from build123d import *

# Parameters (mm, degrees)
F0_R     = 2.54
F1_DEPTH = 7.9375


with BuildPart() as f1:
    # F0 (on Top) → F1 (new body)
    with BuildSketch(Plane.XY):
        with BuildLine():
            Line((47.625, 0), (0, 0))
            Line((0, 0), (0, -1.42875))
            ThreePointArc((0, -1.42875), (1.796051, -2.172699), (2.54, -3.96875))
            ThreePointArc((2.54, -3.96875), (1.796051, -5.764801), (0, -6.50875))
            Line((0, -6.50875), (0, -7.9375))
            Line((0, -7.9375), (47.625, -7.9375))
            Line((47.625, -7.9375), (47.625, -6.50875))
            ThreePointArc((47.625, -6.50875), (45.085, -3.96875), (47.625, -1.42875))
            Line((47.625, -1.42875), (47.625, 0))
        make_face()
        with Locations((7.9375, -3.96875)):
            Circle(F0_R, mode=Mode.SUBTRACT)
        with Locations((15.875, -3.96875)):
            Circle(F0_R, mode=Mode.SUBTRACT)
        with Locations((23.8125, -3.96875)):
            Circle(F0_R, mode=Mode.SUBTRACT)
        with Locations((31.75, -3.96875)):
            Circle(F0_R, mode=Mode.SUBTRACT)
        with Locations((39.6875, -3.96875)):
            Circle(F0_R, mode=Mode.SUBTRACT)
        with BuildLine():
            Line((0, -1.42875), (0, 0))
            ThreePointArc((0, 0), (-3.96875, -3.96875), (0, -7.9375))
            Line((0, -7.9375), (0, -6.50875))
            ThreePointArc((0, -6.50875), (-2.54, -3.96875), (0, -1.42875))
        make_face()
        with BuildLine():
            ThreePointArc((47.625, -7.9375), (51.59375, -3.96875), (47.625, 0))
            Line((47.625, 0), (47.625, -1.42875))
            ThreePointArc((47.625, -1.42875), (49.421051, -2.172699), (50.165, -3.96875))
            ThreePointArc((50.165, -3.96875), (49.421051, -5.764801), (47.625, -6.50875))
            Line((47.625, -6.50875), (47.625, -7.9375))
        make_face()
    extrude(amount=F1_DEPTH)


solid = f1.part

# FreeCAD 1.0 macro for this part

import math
import FreeCAD as App
import Part
import Sketcher
Q = App.Units.Quantity

doc = App.newDocument("Part")
body = doc.addObject("PartDesign::Body", "Body")

sketch1 = doc.addObject("Sketcher::SketchObject", "Sketch")
body.addObject(sketch1)
sketch1.AttachmentSupport = (doc.XY_Plane, [""])
sketch1.MapMode = "FlatFace"
sketch1.addGeometry(Part.LineSegment(App.Vector(47.6, 0, 0), App.Vector(0, 0, 0)), False)
sketch1.addGeometry(Part.ArcOfCircle(Part.Circle(App.Vector(0, -4, 0), App.Vector(0, 0, 1), 4), math.radians(90), math.radians(270)), False)
sketch1.addGeometry(Part.LineSegment(App.Vector(0, -7.9, 0), App.Vector(47.6, -7.9, 0)), False)
sketch1.addGeometry(Part.ArcOfCircle(Part.Circle(App.Vector(47.6, -4, 0), App.Vector(0, 0, 1), 4), math.radians(-90), math.radians(90)), False)
sketch1.addGeometry(Part.ArcOfCircle(Part.Circle(App.Vector(47.6, -4, 0), App.Vector(0, 0, 1), 2.5), math.radians(90), math.radians(270)), False)
sketch1.addGeometry(Part.ArcOfCircle(Part.Circle(App.Vector(47.6, -4, 0), App.Vector(0, 0, 1), 2.5), math.radians(0), math.radians(90)), False)
sketch1.addGeometry(Part.ArcOfCircle(Part.Circle(App.Vector(47.6, -4, 0), App.Vector(0, 0, 1), 2.5), math.radians(-90), math.radians(0)), False)
sketch1.addGeometry(Part.ArcOfCircle(Part.Circle(App.Vector(0, -4, 0), App.Vector(0, 0, 1), 2.5), math.radians(0), math.radians(90)), False)
sketch1.addGeometry(Part.ArcOfCircle(Part.Circle(App.Vector(0, -4, 0), App.Vector(0, 0, 1), 2.5), math.radians(-90), math.radians(0)), False)
sketch1.addGeometry(Part.ArcOfCircle(Part.Circle(App.Vector(0, -4, 0), App.Vector(0, 0, 1), 2.5), math.radians(90), math.radians(270)), False)
sketch1.addGeometry(Part.Circle(App.Vector(7.9, -4, 0), App.Vector(0, 0, 1), 2.5), False)
sketch1.addGeometry(Part.Circle(App.Vector(15.9, -4, 0), App.Vector(0, 0, 1), 2.5), False)
sketch1.addGeometry(Part.Circle(App.Vector(23.8, -4, 0), App.Vector(0, 0, 1), 2.5), False)
sketch1.addGeometry(Part.Circle(App.Vector(31.8, -4, 0), App.Vector(0, 0, 1), 2.5), False)
sketch1.addGeometry(Part.Circle(App.Vector(39.7, -4, 0), App.Vector(0, 0, 1), 2.5), False)
sketch1.addConstraint(Sketcher.Constraint("Tangent", 0, 2, 1, 1))
sketch1.addConstraint(Sketcher.Constraint("Tangent", 1, 2, 2, 1))
sketch1.addConstraint(Sketcher.Constraint("Tangent", 2, 2, 3, 1))
sketch1.addConstraint(Sketcher.Constraint("Tangent", 3, 2, 0, 1))
sketch1.addConstraint(Sketcher.Constraint("Tangent", 4, 1, 5, 2))
sketch1.addConstraint(Sketcher.Constraint("Tangent", 5, 1, 6, 2))
sketch1.addConstraint(Sketcher.Constraint("Tangent", 6, 1, 4, 2))
sketch1.addConstraint(Sketcher.Constraint("Tangent", 7, 1, 8, 2))
sketch1.addConstraint(Sketcher.Constraint("Tangent", 8, 1, 9, 2))
sketch1.addConstraint(Sketcher.Constraint("Tangent", 9, 1, 7, 2))
sketch1.addConstraint(Sketcher.Constraint("Horizontal", 0))
sketch1.addConstraint(Sketcher.Constraint("Horizontal", 2))
sketch1.addConstraint(Sketcher.Constraint("Coincident", 0, 2, -1, 1))
sketch1.addConstraint(Sketcher.Constraint("Coincident", 4, 3, 3, 3))
sketch1.addConstraint(Sketcher.Constraint("Coincident", 7, 3, 1, 3))
sketch1.addConstraint(Sketcher.Constraint("Equal", 6, 7))
sketch1.addConstraint(Sketcher.Constraint("Equal", 9, 10))
sketch1.addConstraint(Sketcher.Constraint("Equal", 10, 11))
sketch1.addConstraint(Sketcher.Constraint("Equal", 11, 12))
sketch1.addConstraint(Sketcher.Constraint("Equal", 12, 13))
sketch1.addConstraint(Sketcher.Constraint("Equal", 13, 14))
sketch1.addConstraint(Sketcher.Constraint("PointOnObject", 8, 1, -2))
sketch1.addConstraint(Sketcher.Constraint("PointOnObject", 9, 1, -2))
sketch1.addConstraint(Sketcher.Constraint("Horizontal", 9, 3, 10, 3))
sketch1.addConstraint(Sketcher.Constraint("Horizontal", 10, 3, 11, 3))
sketch1.addConstraint(Sketcher.Constraint("Horizontal", 11, 3, 12, 3))
sketch1.addConstraint(Sketcher.Constraint("Horizontal", 12, 3, 13, 3))
sketch1.addConstraint(Sketcher.Constraint("Horizontal", 13, 3, 14, 3))
sketch1.addConstraint(Sketcher.Constraint("Horizontal", 14, 3, 5, 1))
sketch1.addConstraint(Sketcher.Constraint("Horizontal", 5, 1, 7, 1))
sketch1.addConstraint(Sketcher.Constraint("Vertical", 3, 2, 4, 1))
sketch1.addConstraint(Sketcher.Constraint("Vertical", 4, 1, 6, 1))
sketch1.addConstraint(Sketcher.Constraint("Diameter", 10, Q("0.2 in")))
sketch1.addConstraint(Sketcher.Constraint("Radius", 1, Q("0.15625 in")))
sketch1.addConstraint(Sketcher.Constraint("DistanceX", 0, 2, 0, 1, Q("1.875 in")))
sketch1.addConstraint(Sketcher.Constraint("DistanceX", -1, 1, 13, 3, Q("1.25 in")))
sketch1.addConstraint(Sketcher.Constraint("DistanceX", -1, 1, 10, 3, Q("0.3125 in")))
sketch1.addConstraint(Sketcher.Constraint("DistanceX", -1, 1, 11, 3, Q("0.625 in")))
sketch1.addConstraint(Sketcher.Constraint("DistanceX", -1, 1, 12, 3, Q("0.9375 in")))
sketch1.addConstraint(Sketcher.Constraint("DistanceX", -1, 1, 14, 3, Q("1.5625 in")))
pad1 = doc.addObject("PartDesign::Pad", "Pad")
body.addObject(pad1)
pad1.Profile = sketch1
pad1.Length = Q("0.3125 in")

doc.recompute()
